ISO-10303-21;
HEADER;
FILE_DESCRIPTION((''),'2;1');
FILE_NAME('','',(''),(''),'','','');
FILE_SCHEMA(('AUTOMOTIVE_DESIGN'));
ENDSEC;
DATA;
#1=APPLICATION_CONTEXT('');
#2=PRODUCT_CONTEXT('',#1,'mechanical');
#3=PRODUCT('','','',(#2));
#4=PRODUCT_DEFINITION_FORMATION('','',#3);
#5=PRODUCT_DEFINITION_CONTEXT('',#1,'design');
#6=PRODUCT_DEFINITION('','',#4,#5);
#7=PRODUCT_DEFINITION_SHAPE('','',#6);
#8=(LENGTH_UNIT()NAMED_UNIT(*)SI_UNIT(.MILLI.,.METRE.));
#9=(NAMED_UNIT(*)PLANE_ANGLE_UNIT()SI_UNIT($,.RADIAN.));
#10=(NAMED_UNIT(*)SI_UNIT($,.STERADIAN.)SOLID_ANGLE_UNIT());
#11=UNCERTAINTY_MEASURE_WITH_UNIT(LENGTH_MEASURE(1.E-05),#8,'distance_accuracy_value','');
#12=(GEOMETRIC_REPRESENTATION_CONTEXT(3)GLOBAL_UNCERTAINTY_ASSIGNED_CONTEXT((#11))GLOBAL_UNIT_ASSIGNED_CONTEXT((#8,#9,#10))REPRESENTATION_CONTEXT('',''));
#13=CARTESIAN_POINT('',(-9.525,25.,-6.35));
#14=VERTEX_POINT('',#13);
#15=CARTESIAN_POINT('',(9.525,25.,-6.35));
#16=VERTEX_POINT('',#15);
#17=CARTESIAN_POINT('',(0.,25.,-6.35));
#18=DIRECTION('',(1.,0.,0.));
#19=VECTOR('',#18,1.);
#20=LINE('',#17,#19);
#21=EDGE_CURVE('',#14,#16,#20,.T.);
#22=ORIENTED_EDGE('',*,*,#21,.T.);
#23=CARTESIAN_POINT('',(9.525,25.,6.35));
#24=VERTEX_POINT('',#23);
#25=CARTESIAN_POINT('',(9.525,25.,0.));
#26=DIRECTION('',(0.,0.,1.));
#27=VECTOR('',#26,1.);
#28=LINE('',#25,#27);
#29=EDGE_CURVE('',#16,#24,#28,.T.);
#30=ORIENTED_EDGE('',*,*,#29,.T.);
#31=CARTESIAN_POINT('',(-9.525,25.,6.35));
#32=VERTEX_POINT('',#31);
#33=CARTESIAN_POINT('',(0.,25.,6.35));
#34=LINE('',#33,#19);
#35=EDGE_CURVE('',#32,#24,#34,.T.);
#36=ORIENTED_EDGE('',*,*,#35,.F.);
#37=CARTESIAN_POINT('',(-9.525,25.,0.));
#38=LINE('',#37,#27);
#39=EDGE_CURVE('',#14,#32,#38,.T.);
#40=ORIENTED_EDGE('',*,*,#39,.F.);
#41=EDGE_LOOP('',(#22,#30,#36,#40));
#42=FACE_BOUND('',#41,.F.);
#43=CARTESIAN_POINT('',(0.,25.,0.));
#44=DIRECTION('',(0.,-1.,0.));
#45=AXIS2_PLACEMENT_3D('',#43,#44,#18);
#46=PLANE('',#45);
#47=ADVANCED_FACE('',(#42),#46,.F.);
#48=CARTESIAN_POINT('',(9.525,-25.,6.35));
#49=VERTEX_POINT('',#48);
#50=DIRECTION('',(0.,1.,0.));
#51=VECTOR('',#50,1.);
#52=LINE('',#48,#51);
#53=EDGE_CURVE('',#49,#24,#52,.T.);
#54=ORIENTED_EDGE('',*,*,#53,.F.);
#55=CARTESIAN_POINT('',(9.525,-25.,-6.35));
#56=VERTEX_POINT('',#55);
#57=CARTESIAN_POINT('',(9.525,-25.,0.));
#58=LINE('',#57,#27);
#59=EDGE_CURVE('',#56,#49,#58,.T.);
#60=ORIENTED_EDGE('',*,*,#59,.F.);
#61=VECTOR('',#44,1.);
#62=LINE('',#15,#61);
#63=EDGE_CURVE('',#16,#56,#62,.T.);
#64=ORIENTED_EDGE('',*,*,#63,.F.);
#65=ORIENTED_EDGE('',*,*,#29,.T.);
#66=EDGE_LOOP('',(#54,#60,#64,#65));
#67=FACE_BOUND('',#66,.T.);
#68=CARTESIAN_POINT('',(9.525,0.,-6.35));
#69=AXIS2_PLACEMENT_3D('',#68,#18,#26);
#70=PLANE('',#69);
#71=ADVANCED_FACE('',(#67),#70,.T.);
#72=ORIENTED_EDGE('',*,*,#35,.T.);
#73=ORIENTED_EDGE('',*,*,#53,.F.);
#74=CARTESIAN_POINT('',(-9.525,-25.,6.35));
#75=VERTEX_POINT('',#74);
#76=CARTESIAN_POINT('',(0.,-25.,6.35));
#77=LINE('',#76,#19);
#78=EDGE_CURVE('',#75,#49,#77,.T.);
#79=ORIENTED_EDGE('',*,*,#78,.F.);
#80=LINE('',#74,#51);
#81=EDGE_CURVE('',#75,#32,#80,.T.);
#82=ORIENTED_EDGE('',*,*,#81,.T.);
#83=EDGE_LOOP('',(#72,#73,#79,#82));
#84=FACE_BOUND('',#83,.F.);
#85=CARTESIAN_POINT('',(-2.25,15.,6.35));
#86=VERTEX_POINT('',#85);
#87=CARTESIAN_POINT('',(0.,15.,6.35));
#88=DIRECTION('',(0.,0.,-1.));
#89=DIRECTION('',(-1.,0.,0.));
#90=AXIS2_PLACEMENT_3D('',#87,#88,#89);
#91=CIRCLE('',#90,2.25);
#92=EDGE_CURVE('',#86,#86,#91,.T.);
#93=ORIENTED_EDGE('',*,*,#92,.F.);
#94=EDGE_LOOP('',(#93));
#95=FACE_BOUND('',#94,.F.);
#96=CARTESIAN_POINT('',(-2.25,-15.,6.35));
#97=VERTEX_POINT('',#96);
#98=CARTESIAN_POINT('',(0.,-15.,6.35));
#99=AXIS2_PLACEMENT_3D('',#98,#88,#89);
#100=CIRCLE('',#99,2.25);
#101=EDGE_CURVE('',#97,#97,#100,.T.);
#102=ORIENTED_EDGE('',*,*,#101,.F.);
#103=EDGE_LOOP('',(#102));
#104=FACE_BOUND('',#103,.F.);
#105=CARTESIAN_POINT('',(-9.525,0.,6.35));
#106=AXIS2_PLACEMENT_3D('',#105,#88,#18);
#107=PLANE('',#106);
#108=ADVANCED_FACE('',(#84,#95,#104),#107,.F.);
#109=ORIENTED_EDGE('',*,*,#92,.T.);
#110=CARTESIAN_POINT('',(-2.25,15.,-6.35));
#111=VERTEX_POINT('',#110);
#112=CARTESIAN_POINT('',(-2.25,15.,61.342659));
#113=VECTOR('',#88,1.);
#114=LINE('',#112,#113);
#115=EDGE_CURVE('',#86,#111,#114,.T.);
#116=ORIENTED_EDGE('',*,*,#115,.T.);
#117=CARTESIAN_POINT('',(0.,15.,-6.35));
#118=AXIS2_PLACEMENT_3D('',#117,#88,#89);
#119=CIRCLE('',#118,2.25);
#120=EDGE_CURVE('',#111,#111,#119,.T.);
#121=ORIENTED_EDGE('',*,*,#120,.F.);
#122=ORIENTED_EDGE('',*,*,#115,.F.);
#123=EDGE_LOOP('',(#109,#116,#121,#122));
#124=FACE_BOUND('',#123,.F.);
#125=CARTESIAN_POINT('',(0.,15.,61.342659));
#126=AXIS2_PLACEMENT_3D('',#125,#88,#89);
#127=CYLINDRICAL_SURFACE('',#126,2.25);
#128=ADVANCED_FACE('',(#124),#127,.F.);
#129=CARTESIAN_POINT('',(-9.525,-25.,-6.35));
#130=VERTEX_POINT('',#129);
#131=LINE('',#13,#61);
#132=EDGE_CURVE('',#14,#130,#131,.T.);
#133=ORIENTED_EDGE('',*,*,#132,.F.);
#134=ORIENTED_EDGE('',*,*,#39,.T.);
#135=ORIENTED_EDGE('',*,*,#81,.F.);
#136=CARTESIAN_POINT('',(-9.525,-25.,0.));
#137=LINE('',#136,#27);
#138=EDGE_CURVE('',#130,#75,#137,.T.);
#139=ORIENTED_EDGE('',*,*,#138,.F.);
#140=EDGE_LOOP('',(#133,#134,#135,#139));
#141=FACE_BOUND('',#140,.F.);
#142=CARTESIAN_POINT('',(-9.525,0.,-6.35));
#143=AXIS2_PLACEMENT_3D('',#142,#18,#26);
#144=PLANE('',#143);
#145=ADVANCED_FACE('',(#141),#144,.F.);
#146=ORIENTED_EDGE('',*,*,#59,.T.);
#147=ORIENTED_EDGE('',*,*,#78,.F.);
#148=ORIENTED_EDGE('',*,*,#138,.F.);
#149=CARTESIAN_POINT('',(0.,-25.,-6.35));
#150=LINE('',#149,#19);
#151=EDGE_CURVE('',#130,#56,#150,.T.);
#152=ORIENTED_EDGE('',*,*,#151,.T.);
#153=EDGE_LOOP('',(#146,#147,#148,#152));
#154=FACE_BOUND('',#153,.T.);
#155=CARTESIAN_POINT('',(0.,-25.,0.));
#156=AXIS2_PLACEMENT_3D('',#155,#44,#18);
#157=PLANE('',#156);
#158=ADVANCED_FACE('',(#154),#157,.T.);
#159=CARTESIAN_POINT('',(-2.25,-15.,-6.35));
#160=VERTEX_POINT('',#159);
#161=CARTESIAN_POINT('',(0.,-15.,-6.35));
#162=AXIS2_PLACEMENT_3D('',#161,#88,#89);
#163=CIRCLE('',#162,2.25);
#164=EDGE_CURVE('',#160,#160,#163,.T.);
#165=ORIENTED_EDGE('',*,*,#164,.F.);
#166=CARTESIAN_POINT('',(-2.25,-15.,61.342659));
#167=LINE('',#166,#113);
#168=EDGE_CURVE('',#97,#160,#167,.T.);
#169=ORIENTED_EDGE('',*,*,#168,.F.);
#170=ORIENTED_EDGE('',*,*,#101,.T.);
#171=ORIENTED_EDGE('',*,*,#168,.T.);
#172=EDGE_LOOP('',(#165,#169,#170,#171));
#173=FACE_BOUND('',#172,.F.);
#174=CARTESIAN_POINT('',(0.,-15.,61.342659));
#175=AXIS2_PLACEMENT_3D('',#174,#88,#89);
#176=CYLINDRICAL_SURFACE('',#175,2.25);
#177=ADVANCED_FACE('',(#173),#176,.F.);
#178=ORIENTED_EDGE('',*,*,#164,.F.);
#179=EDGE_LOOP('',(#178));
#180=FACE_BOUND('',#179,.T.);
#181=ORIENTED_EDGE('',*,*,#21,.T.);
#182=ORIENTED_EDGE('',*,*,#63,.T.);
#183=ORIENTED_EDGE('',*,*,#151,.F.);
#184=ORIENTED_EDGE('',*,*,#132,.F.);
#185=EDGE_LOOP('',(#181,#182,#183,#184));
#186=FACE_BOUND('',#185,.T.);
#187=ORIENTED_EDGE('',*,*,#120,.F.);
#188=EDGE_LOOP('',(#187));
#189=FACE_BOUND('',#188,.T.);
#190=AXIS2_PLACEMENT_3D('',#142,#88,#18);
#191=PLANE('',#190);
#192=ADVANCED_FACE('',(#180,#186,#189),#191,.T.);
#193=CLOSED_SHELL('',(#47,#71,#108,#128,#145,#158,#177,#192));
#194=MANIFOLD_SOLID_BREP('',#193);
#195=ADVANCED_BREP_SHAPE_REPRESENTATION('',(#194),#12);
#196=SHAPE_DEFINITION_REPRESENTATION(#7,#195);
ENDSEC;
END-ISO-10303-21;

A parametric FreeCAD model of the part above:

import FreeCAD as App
import Part
import Sketcher
from FreeCAD import Vector

doc = App.newDocument("Part")
body = doc.addObject("PartDesign::Body", "Body")

# Sketch on XZ plane
sketch1 = body.newObject("Sketcher::SketchObject", "Sketch")
sketch1.AttachmentSupport = (doc.getObject("XZ_Plane"), [""])
sketch1.MapMode = "FlatFace"
sketch1.addGeometry([
    Part.LineSegment(Vector(-10, 6, 0), Vector(-10, -6, 0)),
    Part.LineSegment(Vector(-10, -6, 0), Vector(10, -6, 0)),
    Part.LineSegment(Vector(10, -6, 0), Vector(10, 6, 0)),
    Part.LineSegment(Vector(10, 6, 0), Vector(-10, 6, 0)),
], False)
sketch1.addConstraint([
    Sketcher.Constraint("Coincident", 0, 2, 1, 1),
    Sketcher.Constraint("Coincident", 1, 2, 2, 1),
    Sketcher.Constraint("Coincident", 2, 2, 3, 1),
    Sketcher.Constraint("Coincident", 3, 2, 0, 1),
    Sketcher.Constraint("Vertical", 0),
    Sketcher.Constraint("Horizontal", 1),
    Sketcher.Constraint("Vertical", 2),
    Sketcher.Constraint("Horizontal", 3),
    Sketcher.Constraint("Symmetric", 0, 2, 2, 2, -1, 1),
    Sketcher.Constraint("DistanceY", 0, 2, 0, 1, 12.7),
    Sketcher.Constraint("DistanceX", 1, 1, 1, 2, 19.05),
])
pad1 = body.newObject("PartDesign::Pad", "Pad")
pad1.Profile = sketch1
pad1.Length = 50
pad1.Midplane = True

# Sketch on XY plane
sketch2 = body.newObject("Sketcher::SketchObject", "Sketch001")
sketch2.AttachmentSupport = (doc.getObject("XY_Plane"), [""])
sketch2.MapMode = "FlatFace"
sketch2.AttachmentOffset = App.Placement(Vector(0, 0, 6.35), App.Rotation())
sketch2.addGeometry([
    Part.Circle(Vector(0, 15, 0), Vector(0, 0, 1), 2.2),
    Part.Circle(Vector(0, -15, 0), Vector(0, 0, 1), 2.2),
], False)
sketch2.addConstraint([
    Sketcher.Constraint("Equal", 0, 1),
    Sketcher.Constraint("Symmetric", 0, 3, 1, 3, -1, 1),
    Sketcher.Constraint("PointOnObject", 0, 3, -2),
    Sketcher.Constraint("Diameter", 0, 4.5),
    Sketcher.Constraint("DistanceY", -1, 1, 0, 3, 15.0),
])
doc.recompute()
hole = body.newObject("PartDesign::Hole", "Hole")
hole.Profile = sketch2
hole.ThreadType = "None"
hole.Diameter = 4.5
hole.DepthType = "ThroughAll"

doc.recompute()
